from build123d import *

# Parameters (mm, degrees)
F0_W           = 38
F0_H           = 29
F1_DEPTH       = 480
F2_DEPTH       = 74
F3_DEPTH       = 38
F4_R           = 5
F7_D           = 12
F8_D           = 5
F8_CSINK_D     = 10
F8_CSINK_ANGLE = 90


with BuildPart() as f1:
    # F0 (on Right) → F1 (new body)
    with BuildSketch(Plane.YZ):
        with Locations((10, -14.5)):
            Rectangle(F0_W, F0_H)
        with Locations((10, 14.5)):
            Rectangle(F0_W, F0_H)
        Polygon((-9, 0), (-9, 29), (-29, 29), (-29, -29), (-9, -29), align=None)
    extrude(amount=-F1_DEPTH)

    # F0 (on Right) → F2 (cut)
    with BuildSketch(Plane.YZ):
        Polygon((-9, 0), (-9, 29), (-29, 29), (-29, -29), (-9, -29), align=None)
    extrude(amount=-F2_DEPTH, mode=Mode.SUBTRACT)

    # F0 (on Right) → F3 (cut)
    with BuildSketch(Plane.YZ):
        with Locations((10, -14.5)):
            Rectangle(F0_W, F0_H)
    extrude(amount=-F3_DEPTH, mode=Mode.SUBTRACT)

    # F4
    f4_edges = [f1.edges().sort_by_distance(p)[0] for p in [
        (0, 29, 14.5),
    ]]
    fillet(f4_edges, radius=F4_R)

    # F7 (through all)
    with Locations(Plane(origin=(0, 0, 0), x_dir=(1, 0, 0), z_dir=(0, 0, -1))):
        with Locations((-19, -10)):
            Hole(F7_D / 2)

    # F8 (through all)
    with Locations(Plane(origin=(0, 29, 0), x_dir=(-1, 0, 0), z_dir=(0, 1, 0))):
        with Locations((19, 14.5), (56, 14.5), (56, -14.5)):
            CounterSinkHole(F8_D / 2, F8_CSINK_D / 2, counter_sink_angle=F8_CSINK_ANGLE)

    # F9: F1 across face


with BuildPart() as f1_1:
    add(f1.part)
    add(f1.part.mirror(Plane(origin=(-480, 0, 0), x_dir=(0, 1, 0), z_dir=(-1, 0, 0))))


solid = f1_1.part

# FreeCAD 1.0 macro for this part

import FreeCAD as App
import Part
import Sketcher

V = App.Vector
Q = App.Units.Quantity


def edges_at(feature, points):
    """Names of the edges that pass closest to the given points."""
    edges = feature.Shape.Edges
    near = lambda p: min(range(len(edges)), key=lambda i: edges[i].distToShape(Part.Vertex(*p))[0])
    return sorted({f"Edge{near(p) + 1}" for p in points})

doc = App.newDocument("Part")
body = doc.addObject("PartDesign::Body", "Body")

# Sketch on YZ plane
sketch1 = body.newObject("Sketcher::SketchObject", "Sketch")
sketch1.AttachmentSupport = (doc.getObject("YZ_Plane"), [""])
sketch1.MapMode = "FlatFace"
sketch1.addGeometry(Part.LineSegment(V(29, -29, 0), V(29, 29, 0)), False)
sketch1.addGeometry(Part.LineSegment(V(29, 29, 0), V(-29, 29, 0)), False)
sketch1.addGeometry(Part.LineSegment(V(-29, 29, 0), V(-29, -29, 0)), False)
sketch1.addGeometry(Part.LineSegment(V(-29, -29, 0), V(29, -29, 0)), False)
sketch1.addConstraint(Sketcher.Constraint("Coincident", 0, 2, 1, 1))
sketch1.addConstraint(Sketcher.Constraint("Coincident", 1, 2, 2, 1))
sketch1.addConstraint(Sketcher.Constraint("Coincident", 2, 2, 3, 1))
sketch1.addConstraint(Sketcher.Constraint("Coincident", 3, 2, 0, 1))
sketch1.addConstraint(Sketcher.Constraint("Vertical", 0))
sketch1.addConstraint(Sketcher.Constraint("Horizontal", 1))
sketch1.addConstraint(Sketcher.Constraint("Vertical", 2))
sketch1.addConstraint(Sketcher.Constraint("Horizontal", 3))
sketch1.addConstraint(Sketcher.Constraint("Symmetric", 0, 2, 2, 2, -1, 1))
sketch1.addConstraint(Sketcher.Constraint("Equal", 3, 0))
sketch1.addConstraint(Sketcher.Constraint("DistanceX", 1, 2, 1, 1, Q("58 mm")))
pad1 = body.newObject("PartDesign::Pad", "Pad")
pad1.Profile = sketch1
pad1.Length = 480
pad1.Reversed = True

# Sketch on YZ plane
sketch2 = body.newObject("Sketcher::SketchObject", "Sketch001")
sketch2.AttachmentSupport = (doc.getObject("YZ_Plane"), [""])
sketch2.MapMode = "FlatFace"
sketch2.addGeometry(Part.LineSegment(V(-9, 29, 0), V(-29, 29, 0)), False)
sketch2.addGeometry(Part.LineSegment(V(-29, 29, 0), V(-29, -29, 0)), False)
sketch2.addGeometry(Part.LineSegment(V(-29, -29, 0), V(-9, -29, 0)), False)
sketch2.addGeometry(Part.LineSegment(V(-9, -29, 0), V(-9, 29, 0)), False)
sketch2.addConstraint(Sketcher.Constraint("Coincident", 0, 2, 1, 1))
sketch2.addConstraint(Sketcher.Constraint("Coincident", 1, 2, 2, 1))
sketch2.addConstraint(Sketcher.Constraint("Coincident", 2, 2, 3, 1))
sketch2.addConstraint(Sketcher.Constraint("Coincident", 3, 2, 0, 1))
sketch2.addConstraint(Sketcher.Constraint("Horizontal", 0))
sketch2.addConstraint(Sketcher.Constraint("Vertical", 1))
sketch2.addConstraint(Sketcher.Constraint("Horizontal", 2))
sketch2.addConstraint(Sketcher.Constraint("Vertical", 3))
sketch2.addConstraint(Sketcher.Constraint("DistanceX", 0, 2, 0, 1, Q("20 mm")))
sketch2.addConstraint(Sketcher.Constraint("DistanceY", 1, 2, 1, 1, Q("58 mm")))
sketch2.addConstraint(Sketcher.Constraint("DistanceX", 0, 2, -1, 1, Q("29 mm")))
sketch2.addConstraint(Sketcher.Constraint("DistanceY", -1, 1, 0, 2, Q("29 mm")))
pocket1 = body.newObject("PartDesign::Pocket", "Pocket")
pocket1.Profile = sketch2
pocket1.Length = 74

# Sketch on YZ plane
sketch3 = body.newObject("Sketcher::SketchObject", "Sketch002")
sketch3.AttachmentSupport = (doc.getObject("YZ_Plane"), [""])
sketch3.MapMode = "FlatFace"
sketch3.addGeometry(Part.LineSegment(V(-9, 0, 0), V(-9, -29, 0)), False)
sketch3.addGeometry(Part.LineSegment(V(-9, -29, 0), V(29, -29, 0)), False)
sketch3.addGeometry(Part.LineSegment(V(29, -29, 0), V(29, 0, 0)), False)
sketch3.addGeometry(Part.LineSegment(V(29, 0, 0), V(-9, 0, 0)), False)
sketch3.addConstraint(Sketcher.Constraint("Coincident", 0, 2, 1, 1))
sketch3.addConstraint(Sketcher.Constraint("Coincident", 1, 2, 2, 1))
sketch3.addConstraint(Sketcher.Constraint("Coincident", 2, 2, 3, 1))
sketch3.addConstraint(Sketcher.Constraint("Coincident", 3, 2, 0, 1))
sketch3.addConstraint(Sketcher.Constraint("Vertical", 0))
sketch3.addConstraint(Sketcher.Constraint("Horizontal", 1))
sketch3.addConstraint(Sketcher.Constraint("Vertical", 2))
sketch3.addConstraint(Sketcher.Constraint("Horizontal", 3))
sketch3.addConstraint(Sketcher.Constraint("PointOnObject", 2, 2, -1))
sketch3.addConstraint(Sketcher.Constraint("DistanceX", 1, 1, 1, 2, Q("38 mm")))
sketch3.addConstraint(Sketcher.Constraint("DistanceY", 0, 2, 0, 1, Q("29 mm")))
sketch3.addConstraint(Sketcher.Constraint("DistanceX", 0, 2, -1, 1, Q("9 mm")))
pocket2 = body.newObject("PartDesign::Pocket", "Pocket001")
pocket2.Profile = sketch3
pocket2.Length = 38
doc.recompute()

fillet = body.newObject("PartDesign::Fillet", "Fillet")
fillet.Base = (pocket2, edges_at(pocket2, [(0, 29, 14.5)]))
fillet.Radius = 5

# Sketch on XY plane
sketch4 = body.newObject("Sketcher::SketchObject", "Sketch003")
sketch4.AttachmentSupport = (doc.getObject("XY_Plane"), [""])
sketch4.MapMode = "FlatFace"
sketch4.addGeometry(Part.Circle(V(-19, 10, 0), V(0, 0, 1), 6), False)
sketch4.addConstraint(Sketcher.Constraint("Diameter", 0, Q("12 mm")))
sketch4.addConstraint(Sketcher.Constraint("DistanceX", 0, 3, -1, 1, Q("19 mm")))
sketch4.addConstraint(Sketcher.Constraint("DistanceY", -1, 1, 0, 3, Q("10 mm")))
doc.recompute()
hole = body.newObject("PartDesign::Hole", "Hole")
hole.Profile = sketch4
hole.ThreadType = "None"
hole.Diameter = 12
hole.DepthType = "ThroughAll"
hole.Reversed = True

# Sketch on XZ plane
sketch5 = body.newObject("Sketcher::SketchObject", "Sketch004")
sketch5.AttachmentSupport = (doc.getObject("XZ_Plane"), [""])
sketch5.MapMode = "FlatFace"
sketch5.AttachmentOffset = App.Placement(V(0, 0, -29), App.Rotation())
sketch5.addGeometry(Part.Circle(V(-19, 14.5, 0), V(0, 0, 1), 2.5), False)
sketch5.addGeometry(Part.Circle(V(-56, 14.5, 0), V(0, 0, 1), 2.5), False)
sketch5.addGeometry(Part.Circle(V(-56, -14.5, 0), V(0, 0, 1), 2.5), False)
sketch5.addConstraint(Sketcher.Constraint("Equal", 0, 1))
sketch5.addConstraint(Sketcher.Constraint("Equal", 1, 2))
sketch5.addConstraint(Sketcher.Constraint("Symmetric", 1, 3, 2, 3, -1))
sketch5.addConstraint(Sketcher.Constraint("Horizontal", 0, 3, 1, 3))
sketch5.addConstraint(Sketcher.Constraint("Diameter", 0, Q("5 mm")))
sketch5.addConstraint(Sketcher.Constraint("DistanceX", 0, 3, -1, 1, Q("19 mm")))
sketch5.addConstraint(Sketcher.Constraint("DistanceX", 1, 3, -1, 1, Q("56 mm")))
sketch5.addConstraint(Sketcher.Constraint("DistanceY", 2, 3, 1, 3, Q("29 mm")))
doc.recompute()
hole2 = body.newObject("PartDesign::Hole", "Hole001")
hole2.Profile = sketch5
hole2.ThreadType = "None"
hole2.Diameter = 5
hole2.DepthType = "ThroughAll"
hole2.HoleCutType = "Countersink"
hole2.HoleCutDiameter = 10
hole2.HoleCutCountersinkAngle = 90
hole2.Reversed = True
body2 = doc.addObject("PartDesign::Body", "Body001")
doc.recompute()

body2.BaseFeature = body
doc.recompute()

mirroring = doc.addObject("Part::Mirroring", "Mirroring")
mirroring.Source = body
mirroring.Base = V(-480, 0, 0)
mirroring.Normal = V(-1, 0, 0)
body3 = doc.addObject("PartDesign::Body", "Body002")
body3.BaseFeature = mirroring
boolean = body2.newObject("PartDesign::Boolean", "Boolean")
boolean.Type = "Fuse"
boolean.addObjects([body3])
doc.recompute()
mirroring.Visibility = False

doc.recompute()
